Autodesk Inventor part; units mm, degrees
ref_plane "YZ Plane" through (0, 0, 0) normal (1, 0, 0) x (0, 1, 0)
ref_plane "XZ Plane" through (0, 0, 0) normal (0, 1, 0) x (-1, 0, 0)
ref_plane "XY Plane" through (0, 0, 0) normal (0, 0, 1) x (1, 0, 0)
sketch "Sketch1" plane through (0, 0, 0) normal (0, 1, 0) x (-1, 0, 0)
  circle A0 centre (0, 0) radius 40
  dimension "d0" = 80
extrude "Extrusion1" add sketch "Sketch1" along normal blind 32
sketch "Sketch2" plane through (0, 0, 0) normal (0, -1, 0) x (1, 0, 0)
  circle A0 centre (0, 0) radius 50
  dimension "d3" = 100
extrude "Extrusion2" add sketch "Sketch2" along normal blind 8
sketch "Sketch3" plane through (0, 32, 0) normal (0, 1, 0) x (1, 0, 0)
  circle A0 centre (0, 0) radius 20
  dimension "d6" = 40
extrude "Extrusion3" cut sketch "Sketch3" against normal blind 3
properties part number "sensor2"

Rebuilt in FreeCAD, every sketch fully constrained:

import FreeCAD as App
import Part
import Sketcher
from FreeCAD import Vector

doc = App.newDocument("Part")
body = doc.addObject("PartDesign::Body", "Body")

# Sketch on XZ plane
sketch1 = body.newObject("Sketcher::SketchObject", "Sketch")
sketch1.AttachmentSupport = (doc.getObject("XZ_Plane"), [""])
sketch1.MapMode = "FlatFace"
sketch1.addGeometry(Part.Circle(Vector(0, 0, 0), Vector(0, 0, 1), 40), False)
sketch1.addConstraint([
    Sketcher.Constraint("Coincident", 0, 3, -1, 1),
    Sketcher.Constraint("Diameter", 0, 80.0),
])
pad1 = body.newObject("PartDesign::Pad", "Pad")
pad1.Profile = sketch1
pad1.Length = 32
pad1.Reversed = True

# Sketch on XZ plane
sketch2 = body.newObject("Sketcher::SketchObject", "Sketch001")
sketch2.AttachmentSupport = (doc.getObject("XZ_Plane"), [""])
sketch2.MapMode = "FlatFace"
sketch2.addGeometry(Part.Circle(Vector(0, 0, 0), Vector(0, 0, 1), 50), False)
sketch2.addConstraint([
    Sketcher.Constraint("Coincident", 0, 3, -1, 1),
    Sketcher.Constraint("Diameter", 0, 100.0),
])
pad2 = body.newObject("PartDesign::Pad", "Pad001")
pad2.Profile = sketch2
pad2.Length = 8

# Sketch on XZ plane
sketch3 = body.newObject("Sketcher::SketchObject", "Sketch002")
sketch3.AttachmentSupport = (doc.getObject("XZ_Plane"), [""])
sketch3.MapMode = "FlatFace"
sketch3.AttachmentOffset = App.Placement(Vector(0, 0, -32), App.Rotation())
sketch3.addGeometry(Part.Circle(Vector(0, 0, 0), Vector(0, 0, 1), 20), False)
sketch3.addConstraint([
    Sketcher.Constraint("Coincident", 0, 3, -1, 1),
    Sketcher.Constraint("Diameter", 0, 40.0),
])
pocket1 = body.newObject("PartDesign::Pocket", "Pocket")
pocket1.Profile = sketch3
pocket1.Length = 3
pocket1.Reversed = True

doc.recompute()
